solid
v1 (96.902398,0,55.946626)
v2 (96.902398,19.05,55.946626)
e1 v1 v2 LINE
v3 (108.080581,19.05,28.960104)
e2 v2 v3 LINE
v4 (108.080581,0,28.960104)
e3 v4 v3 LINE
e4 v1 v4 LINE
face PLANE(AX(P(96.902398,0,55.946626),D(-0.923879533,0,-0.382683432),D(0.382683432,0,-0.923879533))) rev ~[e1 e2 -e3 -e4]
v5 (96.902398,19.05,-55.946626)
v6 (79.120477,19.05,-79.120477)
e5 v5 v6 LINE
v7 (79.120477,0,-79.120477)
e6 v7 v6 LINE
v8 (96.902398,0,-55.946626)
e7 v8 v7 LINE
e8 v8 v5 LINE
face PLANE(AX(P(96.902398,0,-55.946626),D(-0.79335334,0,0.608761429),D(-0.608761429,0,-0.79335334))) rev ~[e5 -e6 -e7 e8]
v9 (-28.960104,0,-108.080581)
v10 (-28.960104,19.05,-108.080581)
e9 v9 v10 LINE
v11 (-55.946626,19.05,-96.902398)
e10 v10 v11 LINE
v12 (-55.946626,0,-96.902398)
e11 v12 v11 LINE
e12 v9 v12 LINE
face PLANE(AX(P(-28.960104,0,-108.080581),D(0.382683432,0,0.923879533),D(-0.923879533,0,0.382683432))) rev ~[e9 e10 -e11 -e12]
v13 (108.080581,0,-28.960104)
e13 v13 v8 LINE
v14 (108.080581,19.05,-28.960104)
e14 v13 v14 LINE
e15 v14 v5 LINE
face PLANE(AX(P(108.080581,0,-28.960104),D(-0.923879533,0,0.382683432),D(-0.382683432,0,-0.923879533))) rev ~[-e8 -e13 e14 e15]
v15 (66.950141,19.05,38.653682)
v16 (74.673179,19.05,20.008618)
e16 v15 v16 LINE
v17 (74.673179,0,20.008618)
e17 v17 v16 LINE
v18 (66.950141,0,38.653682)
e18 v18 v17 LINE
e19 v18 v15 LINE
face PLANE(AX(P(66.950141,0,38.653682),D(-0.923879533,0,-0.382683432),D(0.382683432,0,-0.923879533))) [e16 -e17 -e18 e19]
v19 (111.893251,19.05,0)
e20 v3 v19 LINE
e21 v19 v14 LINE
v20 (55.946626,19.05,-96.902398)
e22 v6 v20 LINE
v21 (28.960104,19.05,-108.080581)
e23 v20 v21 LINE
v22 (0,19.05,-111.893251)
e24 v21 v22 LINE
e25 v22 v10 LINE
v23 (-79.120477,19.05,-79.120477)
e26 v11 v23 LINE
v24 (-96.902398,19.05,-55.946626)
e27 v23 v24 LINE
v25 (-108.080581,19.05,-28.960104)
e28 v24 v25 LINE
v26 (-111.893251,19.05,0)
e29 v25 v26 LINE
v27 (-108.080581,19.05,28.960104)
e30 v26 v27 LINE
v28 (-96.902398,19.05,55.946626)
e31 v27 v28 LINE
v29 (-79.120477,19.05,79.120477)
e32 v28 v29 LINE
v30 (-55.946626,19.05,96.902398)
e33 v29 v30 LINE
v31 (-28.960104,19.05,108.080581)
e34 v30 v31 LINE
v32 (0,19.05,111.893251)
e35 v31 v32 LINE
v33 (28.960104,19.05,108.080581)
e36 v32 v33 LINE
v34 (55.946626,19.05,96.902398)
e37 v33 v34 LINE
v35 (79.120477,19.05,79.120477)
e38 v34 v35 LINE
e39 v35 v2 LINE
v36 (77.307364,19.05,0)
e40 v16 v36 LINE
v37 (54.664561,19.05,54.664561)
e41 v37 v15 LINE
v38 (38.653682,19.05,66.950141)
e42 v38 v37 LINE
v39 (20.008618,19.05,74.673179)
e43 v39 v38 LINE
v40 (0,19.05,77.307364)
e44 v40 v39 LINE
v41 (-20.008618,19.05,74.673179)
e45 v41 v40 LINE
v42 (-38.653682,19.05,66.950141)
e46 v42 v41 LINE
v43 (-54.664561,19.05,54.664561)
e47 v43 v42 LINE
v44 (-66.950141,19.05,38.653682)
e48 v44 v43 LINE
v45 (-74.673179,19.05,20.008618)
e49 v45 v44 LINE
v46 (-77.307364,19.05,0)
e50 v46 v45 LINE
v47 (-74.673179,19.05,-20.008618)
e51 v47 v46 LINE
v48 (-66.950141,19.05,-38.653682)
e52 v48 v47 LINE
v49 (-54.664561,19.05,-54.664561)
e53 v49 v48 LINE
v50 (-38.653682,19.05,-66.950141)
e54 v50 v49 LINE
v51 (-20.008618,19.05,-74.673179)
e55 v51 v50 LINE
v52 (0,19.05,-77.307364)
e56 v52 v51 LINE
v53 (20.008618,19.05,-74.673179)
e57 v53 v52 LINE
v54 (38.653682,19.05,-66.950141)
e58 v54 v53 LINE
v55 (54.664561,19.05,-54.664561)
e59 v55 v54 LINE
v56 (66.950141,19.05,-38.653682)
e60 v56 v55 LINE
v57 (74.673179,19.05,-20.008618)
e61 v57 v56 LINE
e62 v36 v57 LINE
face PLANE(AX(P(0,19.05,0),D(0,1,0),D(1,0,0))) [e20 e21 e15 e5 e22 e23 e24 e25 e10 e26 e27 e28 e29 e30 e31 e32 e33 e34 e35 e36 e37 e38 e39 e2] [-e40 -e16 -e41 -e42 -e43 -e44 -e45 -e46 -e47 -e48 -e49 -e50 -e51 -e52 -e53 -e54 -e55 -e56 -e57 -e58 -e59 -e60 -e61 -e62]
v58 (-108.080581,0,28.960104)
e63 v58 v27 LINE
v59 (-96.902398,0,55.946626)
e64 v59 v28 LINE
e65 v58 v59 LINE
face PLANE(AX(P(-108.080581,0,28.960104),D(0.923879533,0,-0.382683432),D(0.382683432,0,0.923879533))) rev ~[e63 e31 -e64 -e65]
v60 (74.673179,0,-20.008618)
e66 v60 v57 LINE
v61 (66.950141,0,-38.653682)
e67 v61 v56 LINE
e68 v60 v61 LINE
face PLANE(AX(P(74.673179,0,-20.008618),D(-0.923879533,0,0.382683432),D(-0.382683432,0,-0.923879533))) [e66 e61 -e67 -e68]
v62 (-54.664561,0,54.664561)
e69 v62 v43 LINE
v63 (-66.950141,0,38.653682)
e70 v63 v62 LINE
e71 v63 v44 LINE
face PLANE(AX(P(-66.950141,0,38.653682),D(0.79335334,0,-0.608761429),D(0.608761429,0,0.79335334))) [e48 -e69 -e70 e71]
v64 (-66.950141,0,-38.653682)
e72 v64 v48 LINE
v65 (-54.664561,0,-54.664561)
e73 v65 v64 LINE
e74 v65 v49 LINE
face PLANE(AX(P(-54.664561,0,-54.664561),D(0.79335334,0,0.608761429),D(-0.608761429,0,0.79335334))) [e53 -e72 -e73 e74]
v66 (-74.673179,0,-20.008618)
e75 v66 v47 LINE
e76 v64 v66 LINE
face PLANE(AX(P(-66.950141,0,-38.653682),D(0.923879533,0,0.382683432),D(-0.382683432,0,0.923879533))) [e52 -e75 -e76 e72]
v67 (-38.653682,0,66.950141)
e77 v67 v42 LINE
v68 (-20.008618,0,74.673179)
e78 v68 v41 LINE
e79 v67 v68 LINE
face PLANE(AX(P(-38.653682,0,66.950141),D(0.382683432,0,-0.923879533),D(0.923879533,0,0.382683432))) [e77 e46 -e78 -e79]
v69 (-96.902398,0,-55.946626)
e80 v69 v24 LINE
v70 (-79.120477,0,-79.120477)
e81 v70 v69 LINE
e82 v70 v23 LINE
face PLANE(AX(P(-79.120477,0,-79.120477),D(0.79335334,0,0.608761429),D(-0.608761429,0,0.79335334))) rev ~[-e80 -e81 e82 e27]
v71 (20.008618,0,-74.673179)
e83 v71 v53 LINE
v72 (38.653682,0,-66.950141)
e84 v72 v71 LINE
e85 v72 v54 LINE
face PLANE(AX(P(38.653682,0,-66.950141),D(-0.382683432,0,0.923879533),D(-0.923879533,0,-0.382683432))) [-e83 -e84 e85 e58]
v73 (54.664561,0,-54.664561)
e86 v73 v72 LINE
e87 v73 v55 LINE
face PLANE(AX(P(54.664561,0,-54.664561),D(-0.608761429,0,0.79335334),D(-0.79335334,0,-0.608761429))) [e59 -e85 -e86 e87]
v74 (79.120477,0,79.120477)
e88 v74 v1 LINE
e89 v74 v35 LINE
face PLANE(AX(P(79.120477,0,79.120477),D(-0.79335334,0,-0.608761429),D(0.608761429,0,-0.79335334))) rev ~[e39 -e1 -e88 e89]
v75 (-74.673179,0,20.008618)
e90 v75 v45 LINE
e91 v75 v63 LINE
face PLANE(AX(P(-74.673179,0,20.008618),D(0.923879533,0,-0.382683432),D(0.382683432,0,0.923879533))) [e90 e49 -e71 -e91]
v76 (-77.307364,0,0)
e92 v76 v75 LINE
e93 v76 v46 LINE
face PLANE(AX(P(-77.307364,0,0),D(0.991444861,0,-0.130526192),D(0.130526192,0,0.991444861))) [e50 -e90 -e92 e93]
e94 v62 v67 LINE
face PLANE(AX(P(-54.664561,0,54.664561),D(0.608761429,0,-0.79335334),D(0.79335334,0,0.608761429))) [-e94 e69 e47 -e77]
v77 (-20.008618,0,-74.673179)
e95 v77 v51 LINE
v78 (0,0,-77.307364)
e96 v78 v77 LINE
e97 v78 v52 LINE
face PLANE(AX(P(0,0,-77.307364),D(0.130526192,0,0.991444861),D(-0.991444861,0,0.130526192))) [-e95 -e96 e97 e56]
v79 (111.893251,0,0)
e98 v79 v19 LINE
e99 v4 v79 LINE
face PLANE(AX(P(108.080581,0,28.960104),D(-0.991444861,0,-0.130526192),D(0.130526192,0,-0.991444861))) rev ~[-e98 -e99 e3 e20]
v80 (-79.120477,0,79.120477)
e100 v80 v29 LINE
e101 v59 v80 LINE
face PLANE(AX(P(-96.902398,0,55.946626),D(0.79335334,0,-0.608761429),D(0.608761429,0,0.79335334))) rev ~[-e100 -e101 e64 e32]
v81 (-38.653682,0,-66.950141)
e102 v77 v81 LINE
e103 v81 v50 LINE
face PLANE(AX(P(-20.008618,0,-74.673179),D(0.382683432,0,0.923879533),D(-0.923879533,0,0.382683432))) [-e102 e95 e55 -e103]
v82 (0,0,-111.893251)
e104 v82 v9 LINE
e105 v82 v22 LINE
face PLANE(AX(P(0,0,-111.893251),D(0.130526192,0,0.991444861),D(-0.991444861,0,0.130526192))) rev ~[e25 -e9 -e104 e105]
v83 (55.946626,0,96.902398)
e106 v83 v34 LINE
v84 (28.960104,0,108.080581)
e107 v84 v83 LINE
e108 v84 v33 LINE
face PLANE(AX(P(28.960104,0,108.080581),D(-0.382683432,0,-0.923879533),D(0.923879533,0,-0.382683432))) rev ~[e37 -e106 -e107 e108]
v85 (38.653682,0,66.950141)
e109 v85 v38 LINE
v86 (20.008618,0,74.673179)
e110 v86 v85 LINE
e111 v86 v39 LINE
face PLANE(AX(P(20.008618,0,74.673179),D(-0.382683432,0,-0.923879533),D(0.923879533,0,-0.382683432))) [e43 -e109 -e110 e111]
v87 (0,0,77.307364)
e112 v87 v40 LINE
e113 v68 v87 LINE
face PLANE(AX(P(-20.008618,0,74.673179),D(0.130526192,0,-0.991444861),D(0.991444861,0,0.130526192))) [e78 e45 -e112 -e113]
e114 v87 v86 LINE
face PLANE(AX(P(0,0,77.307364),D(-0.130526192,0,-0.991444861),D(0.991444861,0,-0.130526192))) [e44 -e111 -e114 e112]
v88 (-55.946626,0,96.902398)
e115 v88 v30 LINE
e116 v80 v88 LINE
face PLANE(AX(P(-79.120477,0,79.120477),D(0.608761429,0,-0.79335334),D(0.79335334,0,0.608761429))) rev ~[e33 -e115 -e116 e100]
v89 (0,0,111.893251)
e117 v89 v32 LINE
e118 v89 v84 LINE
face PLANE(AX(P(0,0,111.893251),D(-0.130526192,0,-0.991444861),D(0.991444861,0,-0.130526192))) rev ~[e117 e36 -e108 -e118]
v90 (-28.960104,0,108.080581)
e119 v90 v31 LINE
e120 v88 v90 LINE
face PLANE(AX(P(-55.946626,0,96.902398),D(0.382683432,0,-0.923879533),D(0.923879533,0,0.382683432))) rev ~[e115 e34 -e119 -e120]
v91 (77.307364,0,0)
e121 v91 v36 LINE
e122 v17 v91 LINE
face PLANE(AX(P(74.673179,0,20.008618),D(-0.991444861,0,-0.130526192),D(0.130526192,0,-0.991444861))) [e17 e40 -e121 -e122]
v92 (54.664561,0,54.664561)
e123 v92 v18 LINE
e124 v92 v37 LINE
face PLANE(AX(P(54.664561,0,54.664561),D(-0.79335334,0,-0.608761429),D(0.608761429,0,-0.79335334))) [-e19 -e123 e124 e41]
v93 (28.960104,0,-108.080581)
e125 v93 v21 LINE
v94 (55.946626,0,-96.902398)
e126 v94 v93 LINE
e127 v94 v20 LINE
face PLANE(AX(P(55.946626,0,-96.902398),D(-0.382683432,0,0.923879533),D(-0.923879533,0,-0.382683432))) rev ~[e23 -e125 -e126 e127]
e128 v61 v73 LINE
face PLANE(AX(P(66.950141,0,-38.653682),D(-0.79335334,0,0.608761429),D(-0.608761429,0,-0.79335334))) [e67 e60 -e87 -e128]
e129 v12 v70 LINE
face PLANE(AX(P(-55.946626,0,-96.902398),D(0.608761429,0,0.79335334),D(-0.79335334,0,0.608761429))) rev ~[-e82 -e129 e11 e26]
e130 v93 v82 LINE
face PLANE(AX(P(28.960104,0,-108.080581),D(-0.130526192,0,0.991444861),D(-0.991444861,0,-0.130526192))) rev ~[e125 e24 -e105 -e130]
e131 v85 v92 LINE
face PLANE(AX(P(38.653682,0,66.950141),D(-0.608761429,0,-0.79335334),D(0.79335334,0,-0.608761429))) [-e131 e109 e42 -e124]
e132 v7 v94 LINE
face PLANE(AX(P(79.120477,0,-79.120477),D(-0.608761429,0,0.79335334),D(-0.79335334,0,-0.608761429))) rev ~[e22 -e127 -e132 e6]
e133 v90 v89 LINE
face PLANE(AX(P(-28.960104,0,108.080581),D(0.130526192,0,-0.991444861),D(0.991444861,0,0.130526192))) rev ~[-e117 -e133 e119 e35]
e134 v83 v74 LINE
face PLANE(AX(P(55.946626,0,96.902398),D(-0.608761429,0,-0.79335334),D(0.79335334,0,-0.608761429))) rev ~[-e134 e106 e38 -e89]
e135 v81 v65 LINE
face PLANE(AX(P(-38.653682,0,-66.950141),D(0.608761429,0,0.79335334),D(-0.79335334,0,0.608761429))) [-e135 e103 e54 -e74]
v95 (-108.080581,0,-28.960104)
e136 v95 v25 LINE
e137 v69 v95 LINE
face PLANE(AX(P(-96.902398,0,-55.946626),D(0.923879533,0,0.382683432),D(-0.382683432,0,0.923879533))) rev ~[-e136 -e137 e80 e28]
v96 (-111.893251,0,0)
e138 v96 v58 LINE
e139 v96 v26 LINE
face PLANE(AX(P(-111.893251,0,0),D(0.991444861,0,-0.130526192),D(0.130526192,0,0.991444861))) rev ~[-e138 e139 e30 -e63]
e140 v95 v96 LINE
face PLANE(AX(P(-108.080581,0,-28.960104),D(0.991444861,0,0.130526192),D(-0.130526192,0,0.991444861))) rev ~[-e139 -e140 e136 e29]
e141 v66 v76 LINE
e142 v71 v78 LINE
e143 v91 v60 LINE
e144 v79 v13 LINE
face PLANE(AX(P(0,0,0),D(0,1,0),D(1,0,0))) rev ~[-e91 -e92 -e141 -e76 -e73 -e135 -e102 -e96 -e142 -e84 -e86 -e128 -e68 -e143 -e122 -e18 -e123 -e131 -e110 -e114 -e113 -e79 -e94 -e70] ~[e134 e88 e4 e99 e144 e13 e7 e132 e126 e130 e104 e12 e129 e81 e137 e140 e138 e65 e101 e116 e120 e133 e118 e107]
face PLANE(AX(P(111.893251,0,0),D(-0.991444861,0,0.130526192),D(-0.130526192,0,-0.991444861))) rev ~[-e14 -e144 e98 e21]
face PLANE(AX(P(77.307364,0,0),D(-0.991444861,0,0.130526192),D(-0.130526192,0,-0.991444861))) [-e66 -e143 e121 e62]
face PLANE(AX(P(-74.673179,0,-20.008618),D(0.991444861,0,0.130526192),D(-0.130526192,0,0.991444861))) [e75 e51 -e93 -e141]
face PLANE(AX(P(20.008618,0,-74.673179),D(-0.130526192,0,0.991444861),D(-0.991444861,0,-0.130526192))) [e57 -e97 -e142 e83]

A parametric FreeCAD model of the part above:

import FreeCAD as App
import Part
import Sketcher

V = App.Vector
Q = App.Units.Quantity


def add_polygon(sketch, points):
    """Adds a closed chain of lines whose ends are joined by coincident constraints."""
    first, n = sketch.GeometryCount, len(points)
    for a, b in zip(points, points[1:] + points[:1]):
        sketch.addGeometry(Part.LineSegment(App.Vector(*a, 0), App.Vector(*b, 0)), False)
    for i in range(n):
        sketch.addConstraint(Sketcher.Constraint("Coincident", first + i, 2, first + (i + 1) % n, 1))

doc = App.newDocument("Part")
body = doc.addObject("PartDesign::Body", "Body")

sketch1 = body.newObject("Sketcher::SketchObject", "Sketch")
sketch1.AttachmentSupport = (doc.getObject("XZ_Plane"), [""])
sketch1.MapMode = "FlatFace"
add_polygon(sketch1, [(-112, 0), (-108, 29), (-97, 56), (-79, 79), (-56, 97), (-29, 108), (0, 112), (29, 108), (56, 97), (79, 79), (97, 56), (108, 29), (112, 0), (108, -29), (97, -56), (79, -79), (56, -97), (29, -108), (0, -112), (-29, -108), (-56, -97), (-79, -79), (-97, -56), (-108, -29)])
add_polygon(sketch1, [(75, -20), (77, 0), (75, 20), (67, 39), (55, 55), (39, 67), (20, 75), (0, 77), (-20, 75), (-39, 67), (-55, 55), (-67, 39), (-75, 20), (-77, 0), (-75, -20), (-67, -39), (-55, -55), (-39, -67), (-20, -75), (0, -77), (20, -75), (39, -67), (55, -55), (67, -39)])
sketch1.addConstraint(Sketcher.Constraint("Symmetric", 0, 2, 12, 2, -1, 1))
sketch1.addConstraint(Sketcher.Constraint("Symmetric", 1, 2, 13, 2, -1, 1))
sketch1.addConstraint(Sketcher.Constraint("Symmetric", 2, 2, 14, 2, -1, 1))
sketch1.addConstraint(Sketcher.Constraint("Symmetric", 3, 2, 15, 2, -1, 1))
sketch1.addConstraint(Sketcher.Constraint("Symmetric", 4, 2, 16, 2, -1, 1))
sketch1.addConstraint(Sketcher.Constraint("Symmetric", 5, 2, 17, 2, -1, 1))
sketch1.addConstraint(Sketcher.Constraint("Symmetric", 6, 2, 18, 2, -1, 1))
sketch1.addConstraint(Sketcher.Constraint("Symmetric", 7, 2, 19, 2, -1, 1))
sketch1.addConstraint(Sketcher.Constraint("Symmetric", 8, 2, 20, 2, -1, 1))
sketch1.addConstraint(Sketcher.Constraint("Symmetric", 9, 2, 21, 2, -1, 1))
sketch1.addConstraint(Sketcher.Constraint("Symmetric", 10, 2, 22, 2, -1, 1))
sketch1.addConstraint(Sketcher.Constraint("Symmetric", 11, 2, 23, 2, -1, 1))
sketch1.addConstraint(Sketcher.Constraint("Symmetric", 24, 2, 36, 2, -1, 1))
sketch1.addConstraint(Sketcher.Constraint("Symmetric", 25, 2, 37, 2, -1, 1))
sketch1.addConstraint(Sketcher.Constraint("Symmetric", 26, 2, 38, 2, -1, 1))
sketch1.addConstraint(Sketcher.Constraint("Symmetric", 27, 2, 39, 2, -1, 1))
sketch1.addConstraint(Sketcher.Constraint("Symmetric", 28, 2, 40, 2, -1, 1))
sketch1.addConstraint(Sketcher.Constraint("Symmetric", 29, 2, 41, 2, -1, 1))
sketch1.addConstraint(Sketcher.Constraint("Symmetric", 30, 2, 42, 2, -1, 1))
sketch1.addConstraint(Sketcher.Constraint("Symmetric", 31, 2, 43, 2, -1, 1))
sketch1.addConstraint(Sketcher.Constraint("Symmetric", 32, 2, 44, 2, -1, 1))
sketch1.addConstraint(Sketcher.Constraint("Symmetric", 33, 2, 45, 2, -1, 1))
sketch1.addConstraint(Sketcher.Constraint("Symmetric", 34, 2, 46, 2, -1, 1))
sketch1.addConstraint(Sketcher.Constraint("Symmetric", 35, 2, 47, 2, -1, 1))
sketch1.addConstraint(Sketcher.Constraint("Symmetric", 4, 2, 6, 2, -2))
sketch1.addConstraint(Sketcher.Constraint("Symmetric", 3, 2, 7, 2, -2))
sketch1.addConstraint(Sketcher.Constraint("Symmetric", 2, 2, 8, 2, -2))
sketch1.addConstraint(Sketcher.Constraint("Symmetric", 1, 2, 9, 2, -2))
sketch1.addConstraint(Sketcher.Constraint("Symmetric", 0, 2, 10, 2, -2))
sketch1.addConstraint(Sketcher.Constraint("Symmetric", 29, 2, 31, 2, -2))
sketch1.addConstraint(Sketcher.Constraint("Symmetric", 28, 2, 32, 2, -2))
sketch1.addConstraint(Sketcher.Constraint("Symmetric", 27, 2, 33, 2, -2))
sketch1.addConstraint(Sketcher.Constraint("Symmetric", 26, 2, 34, 2, -2))
sketch1.addConstraint(Sketcher.Constraint("Symmetric", 25, 2, 35, 2, -2))
sketch1.addConstraint(Sketcher.Constraint("PointOnObject", 5, 2, -2))
sketch1.addConstraint(Sketcher.Constraint("PointOnObject", 11, 2, -1))
sketch1.addConstraint(Sketcher.Constraint("PointOnObject", 24, 2, -1))
sketch1.addConstraint(Sketcher.Constraint("PointOnObject", 30, 2, -2))
sketch1.addConstraint(Sketcher.Constraint("Perpendicular", 0, 6))
sketch1.addConstraint(Sketcher.Constraint("Perpendicular", 1, 7))
sketch1.addConstraint(Sketcher.Constraint("Perpendicular", 2, 8))
sketch1.addConstraint(Sketcher.Constraint("Perpendicular", 18, 24))
sketch1.addConstraint(Sketcher.Constraint("Parallel", 22, 26))
sketch1.addConstraint(Sketcher.Constraint("Parallel", 21, 27))
sketch1.addConstraint(Sketcher.Constraint("Parallel", 20, 28))
sketch1.addConstraint(Sketcher.Constraint("Parallel", 19, 29))
sketch1.addConstraint(Sketcher.Constraint("Perpendicular", 24, 30))
sketch1.addConstraint(Sketcher.Constraint("Equal", 0, 1))
sketch1.addConstraint(Sketcher.Constraint("Equal", 1, 2))
sketch1.addConstraint(Sketcher.Constraint("Equal", 2, 3))
sketch1.addConstraint(Sketcher.Constraint("Equal", 3, 4))
sketch1.addConstraint(Sketcher.Constraint("Equal", 4, 5))
sketch1.addConstraint(Sketcher.Constraint("Equal", 25, 26))
sketch1.addConstraint(Sketcher.Constraint("Equal", 26, 27))
sketch1.addConstraint(Sketcher.Constraint("Equal", 27, 28))
sketch1.addConstraint(Sketcher.Constraint("Equal", 28, 29))
sketch1.addConstraint(Sketcher.Constraint("Equal", 29, 30))
sketch1.addConstraint(Sketcher.Constraint("Angle", 0, Q("82.5 deg")))
sketch1.addConstraint(Sketcher.Constraint("Angle", 1, Q("67.5 deg")))
sketch1.addConstraint(Sketcher.Constraint("Angle", 2, Q("52.5 deg")))
sketch1.addConstraint(Sketcher.Constraint("Distance", 0, Q("1.15 in")))
sketch1.addConstraint(Sketcher.Constraint("DistanceX", 25, 2, 10, 2, 33.407402))
pad1 = body.newObject("PartDesign::Pad", "Pad")
pad1.Profile = sketch1
pad1.Length = Q("0.75 in")
pad1.Reversed = True

doc.recompute()
